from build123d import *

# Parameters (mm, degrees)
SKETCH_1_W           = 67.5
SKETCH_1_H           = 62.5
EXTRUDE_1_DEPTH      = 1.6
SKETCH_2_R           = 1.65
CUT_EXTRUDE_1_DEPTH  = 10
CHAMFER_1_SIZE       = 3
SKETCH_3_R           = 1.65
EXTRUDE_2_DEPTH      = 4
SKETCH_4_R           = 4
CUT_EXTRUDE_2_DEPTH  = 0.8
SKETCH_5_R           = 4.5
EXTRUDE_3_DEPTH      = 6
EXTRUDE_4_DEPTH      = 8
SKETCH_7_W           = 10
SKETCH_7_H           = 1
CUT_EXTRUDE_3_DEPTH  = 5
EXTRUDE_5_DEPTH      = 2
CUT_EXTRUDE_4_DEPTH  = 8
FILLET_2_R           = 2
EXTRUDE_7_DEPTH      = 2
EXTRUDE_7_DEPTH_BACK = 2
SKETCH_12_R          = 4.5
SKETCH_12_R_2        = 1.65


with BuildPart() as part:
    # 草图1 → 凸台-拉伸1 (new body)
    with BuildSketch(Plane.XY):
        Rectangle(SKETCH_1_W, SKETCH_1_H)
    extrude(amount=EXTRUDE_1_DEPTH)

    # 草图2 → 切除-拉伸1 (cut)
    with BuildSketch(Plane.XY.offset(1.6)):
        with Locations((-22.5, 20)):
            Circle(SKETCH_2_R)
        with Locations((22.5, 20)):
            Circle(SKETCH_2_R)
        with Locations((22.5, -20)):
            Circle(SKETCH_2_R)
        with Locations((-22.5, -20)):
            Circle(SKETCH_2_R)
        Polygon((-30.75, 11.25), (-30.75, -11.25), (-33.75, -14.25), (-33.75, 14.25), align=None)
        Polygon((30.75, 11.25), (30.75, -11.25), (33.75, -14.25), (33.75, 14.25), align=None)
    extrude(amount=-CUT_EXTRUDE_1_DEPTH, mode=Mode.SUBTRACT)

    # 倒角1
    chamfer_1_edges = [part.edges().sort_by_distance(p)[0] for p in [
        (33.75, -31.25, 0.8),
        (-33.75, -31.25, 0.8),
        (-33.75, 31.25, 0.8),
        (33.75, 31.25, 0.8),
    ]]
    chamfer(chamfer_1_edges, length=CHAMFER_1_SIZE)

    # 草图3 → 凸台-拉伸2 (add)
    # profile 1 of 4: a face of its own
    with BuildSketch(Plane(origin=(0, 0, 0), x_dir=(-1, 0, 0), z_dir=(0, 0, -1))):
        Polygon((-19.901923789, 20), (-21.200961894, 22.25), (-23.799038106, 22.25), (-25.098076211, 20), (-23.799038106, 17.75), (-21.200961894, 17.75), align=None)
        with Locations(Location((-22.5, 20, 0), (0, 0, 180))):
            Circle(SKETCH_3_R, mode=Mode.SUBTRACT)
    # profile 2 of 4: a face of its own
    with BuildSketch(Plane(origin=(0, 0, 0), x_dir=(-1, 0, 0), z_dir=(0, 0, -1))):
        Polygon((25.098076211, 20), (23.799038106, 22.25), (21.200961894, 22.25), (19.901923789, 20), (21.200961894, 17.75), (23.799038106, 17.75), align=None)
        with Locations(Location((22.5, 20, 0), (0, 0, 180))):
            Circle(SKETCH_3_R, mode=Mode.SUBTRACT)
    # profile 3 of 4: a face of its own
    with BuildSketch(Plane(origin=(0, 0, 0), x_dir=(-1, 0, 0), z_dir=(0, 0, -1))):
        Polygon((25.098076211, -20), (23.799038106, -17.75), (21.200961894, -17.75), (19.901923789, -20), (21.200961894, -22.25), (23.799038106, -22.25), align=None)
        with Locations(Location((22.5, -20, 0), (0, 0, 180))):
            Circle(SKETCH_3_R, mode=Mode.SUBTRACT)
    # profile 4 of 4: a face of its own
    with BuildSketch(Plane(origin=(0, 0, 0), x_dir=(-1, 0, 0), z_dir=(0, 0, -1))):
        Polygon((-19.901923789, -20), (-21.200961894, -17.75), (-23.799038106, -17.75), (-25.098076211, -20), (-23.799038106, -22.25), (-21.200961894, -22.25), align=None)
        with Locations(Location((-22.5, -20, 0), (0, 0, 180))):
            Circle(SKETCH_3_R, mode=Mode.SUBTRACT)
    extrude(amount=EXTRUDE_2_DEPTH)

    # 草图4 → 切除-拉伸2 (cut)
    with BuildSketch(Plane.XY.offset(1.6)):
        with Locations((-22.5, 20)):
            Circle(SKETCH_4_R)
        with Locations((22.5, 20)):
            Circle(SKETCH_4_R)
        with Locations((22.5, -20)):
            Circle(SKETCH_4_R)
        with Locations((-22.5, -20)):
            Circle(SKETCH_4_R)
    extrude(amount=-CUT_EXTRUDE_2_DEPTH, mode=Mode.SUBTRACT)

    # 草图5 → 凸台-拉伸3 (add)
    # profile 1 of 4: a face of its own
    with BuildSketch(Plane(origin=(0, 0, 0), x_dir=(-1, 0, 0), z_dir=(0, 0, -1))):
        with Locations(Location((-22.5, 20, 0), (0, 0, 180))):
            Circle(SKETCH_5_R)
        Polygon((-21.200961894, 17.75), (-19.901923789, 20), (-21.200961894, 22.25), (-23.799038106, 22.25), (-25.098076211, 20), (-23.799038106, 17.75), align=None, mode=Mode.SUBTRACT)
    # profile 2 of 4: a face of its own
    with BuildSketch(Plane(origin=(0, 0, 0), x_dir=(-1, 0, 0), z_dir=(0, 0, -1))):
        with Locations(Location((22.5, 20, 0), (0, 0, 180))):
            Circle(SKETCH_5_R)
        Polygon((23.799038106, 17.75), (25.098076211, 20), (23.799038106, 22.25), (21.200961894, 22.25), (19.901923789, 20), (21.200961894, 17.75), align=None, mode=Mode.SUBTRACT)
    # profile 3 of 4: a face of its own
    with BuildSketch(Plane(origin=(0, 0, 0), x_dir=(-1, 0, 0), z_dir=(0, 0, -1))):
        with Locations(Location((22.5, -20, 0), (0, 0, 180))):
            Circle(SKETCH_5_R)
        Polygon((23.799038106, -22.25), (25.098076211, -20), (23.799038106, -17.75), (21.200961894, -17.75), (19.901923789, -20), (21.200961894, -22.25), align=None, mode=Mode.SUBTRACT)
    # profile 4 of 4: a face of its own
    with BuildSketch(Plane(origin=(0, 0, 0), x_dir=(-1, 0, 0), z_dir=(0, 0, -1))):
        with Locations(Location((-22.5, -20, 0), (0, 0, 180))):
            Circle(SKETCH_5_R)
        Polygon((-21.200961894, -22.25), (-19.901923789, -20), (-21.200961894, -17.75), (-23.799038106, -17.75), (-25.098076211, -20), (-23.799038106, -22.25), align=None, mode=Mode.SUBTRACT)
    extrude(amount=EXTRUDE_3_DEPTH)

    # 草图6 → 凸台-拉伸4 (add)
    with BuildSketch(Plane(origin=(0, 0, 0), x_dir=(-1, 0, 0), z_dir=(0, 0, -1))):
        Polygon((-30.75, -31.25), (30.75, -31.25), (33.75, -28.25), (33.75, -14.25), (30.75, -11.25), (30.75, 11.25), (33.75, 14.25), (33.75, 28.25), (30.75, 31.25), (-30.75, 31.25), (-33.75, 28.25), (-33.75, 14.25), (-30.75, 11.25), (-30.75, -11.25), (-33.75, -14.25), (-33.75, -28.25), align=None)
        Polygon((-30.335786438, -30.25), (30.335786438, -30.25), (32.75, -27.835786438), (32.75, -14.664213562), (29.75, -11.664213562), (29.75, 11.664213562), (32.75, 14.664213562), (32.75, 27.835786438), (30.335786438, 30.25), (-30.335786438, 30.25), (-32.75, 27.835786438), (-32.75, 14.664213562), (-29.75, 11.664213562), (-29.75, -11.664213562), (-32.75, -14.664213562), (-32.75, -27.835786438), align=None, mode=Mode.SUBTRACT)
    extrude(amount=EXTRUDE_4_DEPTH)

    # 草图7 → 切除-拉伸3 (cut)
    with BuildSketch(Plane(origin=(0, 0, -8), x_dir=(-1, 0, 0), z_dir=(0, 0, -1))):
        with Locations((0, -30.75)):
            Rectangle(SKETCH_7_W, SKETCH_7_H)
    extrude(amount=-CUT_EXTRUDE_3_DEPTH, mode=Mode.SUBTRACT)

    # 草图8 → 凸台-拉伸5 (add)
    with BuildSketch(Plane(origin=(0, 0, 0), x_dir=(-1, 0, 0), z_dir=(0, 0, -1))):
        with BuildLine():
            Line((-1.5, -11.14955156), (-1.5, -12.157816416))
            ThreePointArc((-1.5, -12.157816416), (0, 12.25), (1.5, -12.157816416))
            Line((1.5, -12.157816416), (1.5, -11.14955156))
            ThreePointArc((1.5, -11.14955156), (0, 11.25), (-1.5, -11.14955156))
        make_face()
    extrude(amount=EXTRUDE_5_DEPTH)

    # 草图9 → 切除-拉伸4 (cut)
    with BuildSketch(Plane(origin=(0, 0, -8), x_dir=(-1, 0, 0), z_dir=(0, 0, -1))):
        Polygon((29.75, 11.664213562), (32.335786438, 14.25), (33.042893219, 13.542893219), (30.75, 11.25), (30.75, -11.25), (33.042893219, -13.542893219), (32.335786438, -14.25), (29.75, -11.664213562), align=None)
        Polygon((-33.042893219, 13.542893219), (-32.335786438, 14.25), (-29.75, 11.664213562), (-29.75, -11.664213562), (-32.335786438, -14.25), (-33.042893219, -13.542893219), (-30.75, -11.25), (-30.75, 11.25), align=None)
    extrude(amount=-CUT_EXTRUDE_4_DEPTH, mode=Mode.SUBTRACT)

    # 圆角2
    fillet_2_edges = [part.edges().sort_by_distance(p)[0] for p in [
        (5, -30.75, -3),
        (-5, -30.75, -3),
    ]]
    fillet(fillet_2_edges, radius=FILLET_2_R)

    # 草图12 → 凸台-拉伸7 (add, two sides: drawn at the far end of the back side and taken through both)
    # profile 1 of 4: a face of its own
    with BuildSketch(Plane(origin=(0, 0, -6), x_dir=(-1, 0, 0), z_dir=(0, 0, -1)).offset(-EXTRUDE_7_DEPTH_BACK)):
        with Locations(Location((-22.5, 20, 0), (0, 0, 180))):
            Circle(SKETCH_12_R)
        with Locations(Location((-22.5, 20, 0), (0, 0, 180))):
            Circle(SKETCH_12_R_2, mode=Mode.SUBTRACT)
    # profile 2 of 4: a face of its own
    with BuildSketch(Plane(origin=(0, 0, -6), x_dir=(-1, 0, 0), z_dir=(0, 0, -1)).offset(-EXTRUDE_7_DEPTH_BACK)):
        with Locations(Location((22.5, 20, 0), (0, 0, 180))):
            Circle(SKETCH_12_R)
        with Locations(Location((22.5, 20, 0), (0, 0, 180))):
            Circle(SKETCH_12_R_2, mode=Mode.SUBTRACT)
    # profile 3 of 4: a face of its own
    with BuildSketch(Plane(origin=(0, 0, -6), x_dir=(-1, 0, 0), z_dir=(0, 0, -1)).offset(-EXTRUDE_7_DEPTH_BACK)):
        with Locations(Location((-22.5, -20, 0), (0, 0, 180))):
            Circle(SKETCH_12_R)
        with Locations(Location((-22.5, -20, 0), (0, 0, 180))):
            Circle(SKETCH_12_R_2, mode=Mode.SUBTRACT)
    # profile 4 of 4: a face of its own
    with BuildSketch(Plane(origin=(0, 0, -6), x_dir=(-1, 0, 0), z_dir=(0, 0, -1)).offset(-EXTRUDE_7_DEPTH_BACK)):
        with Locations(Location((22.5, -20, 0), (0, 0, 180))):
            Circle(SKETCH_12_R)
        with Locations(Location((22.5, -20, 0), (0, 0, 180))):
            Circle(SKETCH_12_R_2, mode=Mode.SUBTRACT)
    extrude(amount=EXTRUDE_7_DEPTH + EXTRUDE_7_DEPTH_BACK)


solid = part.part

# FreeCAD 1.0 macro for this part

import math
import FreeCAD as App
import Part
import Sketcher
Q = App.Units.Quantity


def edges_at(feature, points):
    """Names of the edges that pass closest to the given points."""
    edges = feature.Shape.Edges
    near = lambda p: min(range(len(edges)), key=lambda i: edges[i].distToShape(Part.Vertex(*p))[0])
    return sorted({f"Edge{near(p) + 1}" for p in points})


def add_polygon(sketch, points):
    """Adds a closed chain of lines whose ends are joined by coincident constraints."""
    first, n = sketch.GeometryCount, len(points)
    for a, b in zip(points, points[1:] + points[:1]):
        sketch.addGeometry(Part.LineSegment(App.Vector(*a, 0), App.Vector(*b, 0)), False)
    for i in range(n):
        sketch.addConstraint(Sketcher.Constraint("Coincident", first + i, 2, first + (i + 1) % n, 1))

doc = App.newDocument("Part")
body = doc.addObject("PartDesign::Body", "Body")

# Sketch on XY plane
sketch1 = doc.addObject("Sketcher::SketchObject", "Sketch")
body.addObject(sketch1)
sketch1.AttachmentSupport = (doc.XY_Plane, [""])
sketch1.MapMode = "FlatFace"
add_polygon(sketch1, [(-34, 31), (-34, -31), (34, -31), (34, 31)])  # lines 0-3
sketch1.addConstraint(Sketcher.Constraint("Vertical", 0))
sketch1.addConstraint(Sketcher.Constraint("Horizontal", 1))
sketch1.addConstraint(Sketcher.Constraint("Vertical", 2))
sketch1.addConstraint(Sketcher.Constraint("Horizontal", 3))
sketch1.addConstraint(Sketcher.Constraint("Symmetric", 0, 2, 2, 2, -1, 1))
sketch1.addConstraint(Sketcher.Constraint("DistanceX", 1, 1, 1, 2, Q("67.5 mm")))
sketch1.addConstraint(Sketcher.Constraint("DistanceY", 0, 2, 0, 1, Q("62.5 mm")))
pad1 = doc.addObject("PartDesign::Pad", "Pad")
body.addObject(pad1)
pad1.Profile = sketch1
pad1.Length = 1.6

# Sketch on XY plane
sketch2 = doc.addObject("Sketcher::SketchObject", "Sketch001")
body.addObject(sketch2)
sketch2.AttachmentSupport = (doc.XY_Plane, [""])
sketch2.MapMode = "FlatFace"
sketch2.AttachmentOffset = App.Placement(App.Vector(0, 0, 1.6), App.Rotation())
sketch2.addGeometry(Part.Circle(App.Vector(-22.5, 20, 0), App.Vector(0, 0, 1), 1.6), False)  # 0
sketch2.addGeometry(Part.Circle(App.Vector(22.5, 20, 0), App.Vector(0, 0, 1), 1.6), False)  # 1
sketch2.addGeometry(Part.Circle(App.Vector(22.5, -20, 0), App.Vector(0, 0, 1), 1.6), False)  # 2
sketch2.addGeometry(Part.Circle(App.Vector(-22.5, -20, 0), App.Vector(0, 0, 1), 1.6), False)  # 3
add_polygon(sketch2, [(-30.8, -11.2), (-30.8, 11.2), (-33.8, 14.2), (-33.8, -14.2)])  # lines 4-7
add_polygon(sketch2, [(30.8, 11.2), (30.8, -11.2), (33.8, -14.2), (33.8, 14.2)])  # lines 8-11
sketch2.addConstraint(Sketcher.Constraint("Vertical", 4))
sketch2.addConstraint(Sketcher.Constraint("Vertical", 6))
sketch2.addConstraint(Sketcher.Constraint("Vertical", 8))
sketch2.addConstraint(Sketcher.Constraint("Vertical", 10))
sketch2.addConstraint(Sketcher.Constraint("Equal", 0, 1))
sketch2.addConstraint(Sketcher.Constraint("Equal", 1, 2))
sketch2.addConstraint(Sketcher.Constraint("Equal", 2, 3))
sketch2.addConstraint(Sketcher.Constraint("Symmetric", 0, 3, 2, 3, -1, 1))
sketch2.addConstraint(Sketcher.Constraint("Symmetric", 1, 3, 3, 3, -1, 1))
sketch2.addConstraint(Sketcher.Constraint("Symmetric", 4, 2, 8, 2, -1, 1))
sketch2.addConstraint(Sketcher.Constraint("Symmetric", 5, 2, 9, 2, -1, 1))
sketch2.addConstraint(Sketcher.Constraint("Symmetric", 0, 3, 1, 3, -2))
sketch2.addConstraint(Sketcher.Constraint("Perpendicular", 5, 7))
sketch2.addConstraint(Sketcher.Constraint("Perpendicular", 9, 11))
sketch2.addConstraint(Sketcher.Constraint("Horizontal", 7, 2, 8, 2))
sketch2.addConstraint(Sketcher.Constraint("Horizontal", 6, 2, 9, 2))
sketch2.addConstraint(Sketcher.Constraint("Horizontal", 5, 2, 10, 2))
sketch2.addConstraint(Sketcher.Constraint("Diameter", 0, Q("3.3 mm")))
sketch2.addConstraint(Sketcher.Constraint("DistanceY", 4, 1, 4, 2, Q("22.5 mm")))
sketch2.addConstraint(Sketcher.Constraint("DistanceY", 6, 2, 6, 1, Q("28.5 mm")))
sketch2.addConstraint(Sketcher.Constraint("DistanceY", -1, 1, 0, 3, Q("20 mm")))
sketch2.addConstraint(Sketcher.Constraint("DistanceX", 0, 3, 1, 3, Q("45 mm")))
sketch2.addConstraint(Sketcher.Constraint("DistanceX", 7, 2, 8, 2, Q("61.5 mm")))
pocket1 = doc.addObject("PartDesign::Pocket", "Pocket")
body.addObject(pocket1)
pocket1.Profile = sketch2
pocket1.Length = 10
doc.recompute()

chamfer = doc.addObject("PartDesign::Chamfer", "Chamfer")
body.addObject(chamfer)
chamfer.Base = (pocket1, edges_at(pocket1, [
    (33.75, -31.25, 0.8),
    (-33.75, -31.25, 0.8),
    (-33.75, 31.25, 0.8),
    (33.75, 31.25, 0.8),
]))
chamfer.Size = 3

# Sketch on XY plane
sketch3 = doc.addObject("Sketcher::SketchObject", "Sketch002")
body.addObject(sketch3)
sketch3.AttachmentSupport = (doc.XY_Plane, [""])
sketch3.MapMode = "FlatFace"
add_polygon(sketch3, [(19.9, 20), (21.2, 22.2), (23.8, 22.2), (25.1, 20), (23.8, 17.8), (21.2, 17.8)])  # lines 0-5
sketch3.addGeometry(Part.Circle(App.Vector(22.5, 20, 0), App.Vector(0, 0, 1), 1.6), False)  # 6
add_polygon(sketch3, [(-25.1, 20), (-23.8, 22.2), (-21.2, 22.2), (-19.9, 20), (-21.2, 17.8), (-23.8, 17.8)])  # lines 7-12
sketch3.addGeometry(Part.Circle(App.Vector(-22.5, 20, 0), App.Vector(0, 0, 1), 1.6), False)  # 13
add_polygon(sketch3, [(-25.1, -20), (-23.8, -17.8), (-21.2, -17.8), (-19.9, -20), (-21.2, -22.2), (-23.8, -22.2)])  # lines 14-19
sketch3.addGeometry(Part.Circle(App.Vector(-22.5, -20, 0), App.Vector(0, 0, 1), 1.6), False)  # 20
add_polygon(sketch3, [(19.9, -20), (21.2, -17.8), (23.8, -17.8), (25.1, -20), (23.8, -22.2), (21.2, -22.2)])  # lines 21-26
sketch3.addGeometry(Part.Circle(App.Vector(22.5, -20, 0), App.Vector(0, 0, 1), 1.6), False)  # 27
sketch3.addConstraint(Sketcher.Constraint("Horizontal", 1))
sketch3.addConstraint(Sketcher.Constraint("Horizontal", 4))
sketch3.addConstraint(Sketcher.Constraint("Horizontal", 8))
sketch3.addConstraint(Sketcher.Constraint("Horizontal", 11))
sketch3.addConstraint(Sketcher.Constraint("Horizontal", 15))
sketch3.addConstraint(Sketcher.Constraint("Horizontal", 18))
sketch3.addConstraint(Sketcher.Constraint("Horizontal", 22))
sketch3.addConstraint(Sketcher.Constraint("Horizontal", 25))
sketch3.addConstraint(Sketcher.Constraint("Equal", 6, 13))
sketch3.addConstraint(Sketcher.Constraint("Equal", 13, 20))
sketch3.addConstraint(Sketcher.Constraint("Equal", 20, 27))
sketch3.addConstraint(Sketcher.Constraint("Symmetric", 6, 3, 20, 3, -1, 1))
sketch3.addConstraint(Sketcher.Constraint("Symmetric", 13, 3, 27, 3, -1, 1))
sketch3.addConstraint(Sketcher.Constraint("Symmetric", 3, 2, 14, 2, -1, 1))
sketch3.addConstraint(Sketcher.Constraint("Symmetric", 5, 2, 16, 2, -1, 1))
sketch3.addConstraint(Sketcher.Constraint("Symmetric", 0, 2, 17, 2, -1, 1))
sketch3.addConstraint(Sketcher.Constraint("Symmetric", 2, 2, 19, 2, -1, 1))
sketch3.addConstraint(Sketcher.Constraint("Symmetric", 10, 2, 21, 2, -1, 1))
sketch3.addConstraint(Sketcher.Constraint("Symmetric", 12, 2, 23, 2, -1, 1))
sketch3.addConstraint(Sketcher.Constraint("Symmetric", 7, 2, 24, 2, -1, 1))
sketch3.addConstraint(Sketcher.Constraint("Symmetric", 9, 2, 26, 2, -1, 1))
sketch3.addConstraint(Sketcher.Constraint("Symmetric", 6, 3, 13, 3, -2))
sketch3.addConstraint(Sketcher.Constraint("Symmetric", 1, 2, 7, 2, -2))
sketch3.addConstraint(Sketcher.Constraint("Symmetric", 5, 2, 9, 2, -2))
sketch3.addConstraint(Sketcher.Constraint("Symmetric", 4, 2, 10, 2, -2))
sketch3.addConstraint(Sketcher.Constraint("Symmetric", 2, 2, 12, 2, -2))
sketch3.addConstraint(Sketcher.Constraint("Parallel", 0, 3))
sketch3.addConstraint(Sketcher.Constraint("Parallel", 2, 5))
sketch3.addConstraint(Sketcher.Constraint("Parallel", 3, 7))
sketch3.addConstraint(Sketcher.Constraint("Parallel", 5, 9))
sketch3.addConstraint(Sketcher.Constraint("Parallel", 9, 12))
sketch3.addConstraint(Sketcher.Constraint("Parallel", 12, 16))
sketch3.addConstraint(Sketcher.Constraint("Parallel", 16, 19))
sketch3.addConstraint(Sketcher.Constraint("Parallel", 19, 23))
sketch3.addConstraint(Sketcher.Constraint("Parallel", 23, 26))
sketch3.addConstraint(Sketcher.Constraint("Horizontal", 13, 3, 2, 2))
sketch3.addConstraint(Sketcher.Constraint("Horizontal", 2, 2, 5, 2))
sketch3.addConstraint(Sketcher.Constraint("Vertical", 1, 2, 3, 2))
sketch3.addConstraint(Sketcher.Constraint("Diameter", 6, Q("3.3 mm")))
sketch3.addConstraint(Sketcher.Constraint("Angle", 0, Q("60 deg")))
sketch3.addConstraint(Sketcher.Constraint("DistanceY", -1, 1, 6, 3, Q("20 mm")))
sketch3.addConstraint(Sketcher.Constraint("DistanceX", 13, 3, 6, 3, Q("45 mm")))
sketch3.addConstraint(Sketcher.Constraint("DistanceX", 7, 2, 0, 2, Q("45 mm")))
sketch3.addConstraint(Sketcher.Constraint("DistanceY", 3, 2, 1, 2, Q("4.5 mm")))
sketch3.addConstraint(Sketcher.Constraint("DistanceX", 1, 1, 1, 2, Q("2.598076 mm")))
pad2 = doc.addObject("PartDesign::Pad", "Pad001")
body.addObject(pad2)
pad2.Profile = sketch3
pad2.Length = 4
pad2.Reversed = True

# Sketch on XY plane
sketch4 = doc.addObject("Sketcher::SketchObject", "Sketch003")
body.addObject(sketch4)
sketch4.AttachmentSupport = (doc.XY_Plane, [""])
sketch4.MapMode = "FlatFace"
sketch4.AttachmentOffset = App.Placement(App.Vector(0, 0, 1.6), App.Rotation())
sketch4.addGeometry(Part.Circle(App.Vector(-22.5, 20, 0), App.Vector(0, 0, 1), 4), False)
sketch4.addGeometry(Part.Circle(App.Vector(22.5, 20, 0), App.Vector(0, 0, 1), 4), False)
sketch4.addGeometry(Part.Circle(App.Vector(22.5, -20, 0), App.Vector(0, 0, 1), 4), False)
sketch4.addGeometry(Part.Circle(App.Vector(-22.5, -20, 0), App.Vector(0, 0, 1), 4), False)
sketch4.addConstraint(Sketcher.Constraint("Equal", 0, 1))
sketch4.addConstraint(Sketcher.Constraint("Equal", 1, 2))
sketch4.addConstraint(Sketcher.Constraint("Equal", 2, 3))
sketch4.addConstraint(Sketcher.Constraint("Symmetric", 0, 3, 2, 3, -1, 1))
sketch4.addConstraint(Sketcher.Constraint("Symmetric", 1, 3, 3, 3, -1, 1))
sketch4.addConstraint(Sketcher.Constraint("Symmetric", 0, 3, 1, 3, -2))
sketch4.addConstraint(Sketcher.Constraint("Diameter", 0, Q("8 mm")))
sketch4.addConstraint(Sketcher.Constraint("DistanceY", -1, 1, 0, 3, Q("20 mm")))
sketch4.addConstraint(Sketcher.Constraint("DistanceX", 0, 3, 1, 3, Q("45 mm")))
pocket2 = doc.addObject("PartDesign::Pocket", "Pocket001")
body.addObject(pocket2)
pocket2.Profile = sketch4
pocket2.Length = 0.8

# Sketch on XY plane
sketch5 = doc.addObject("Sketcher::SketchObject", "Sketch004")
body.addObject(sketch5)
sketch5.AttachmentSupport = (doc.XY_Plane, [""])
sketch5.MapMode = "FlatFace"
sketch5.addGeometry(Part.Circle(App.Vector(22.5, 20, 0), App.Vector(0, 0, 1), 4.5), False)  # 0
add_polygon(sketch5, [(19.9, 20), (21.2, 17.8), (23.8, 17.8), (25.1, 20), (23.8, 22.2), (21.2, 22.2)])  # lines 1-6
sketch5.addGeometry(Part.Circle(App.Vector(-22.5, 20, 0), App.Vector(0, 0, 1), 4.5), False)  # 7
add_polygon(sketch5, [(-25.1, 20), (-23.8, 17.8), (-21.2, 17.8), (-19.9, 20), (-21.2, 22.2), (-23.8, 22.2)])  # lines 8-13
sketch5.addGeometry(Part.Circle(App.Vector(-22.5, -20, 0), App.Vector(0, 0, 1), 4.5), False)  # 14
add_polygon(sketch5, [(-25.1, -20), (-23.8, -22.2), (-21.2, -22.2), (-19.9, -20), (-21.2, -17.8), (-23.8, -17.8)])  # lines 15-20
sketch5.addGeometry(Part.Circle(App.Vector(22.5, -20, 0), App.Vector(0, 0, 1), 4.5), False)  # 21
add_polygon(sketch5, [(19.9, -20), (21.2, -22.2), (23.8, -22.2), (25.1, -20), (23.8, -17.8), (21.2, -17.8)])  # lines 22-27
sketch5.addConstraint(Sketcher.Constraint("Horizontal", 2))
sketch5.addConstraint(Sketcher.Constraint("Horizontal", 5))
sketch5.addConstraint(Sketcher.Constraint("Horizontal", 9))
sketch5.addConstraint(Sketcher.Constraint("Horizontal", 12))
sketch5.addConstraint(Sketcher.Constraint("Horizontal", 16))
sketch5.addConstraint(Sketcher.Constraint("Horizontal", 19))
sketch5.addConstraint(Sketcher.Constraint("Horizontal", 23))
sketch5.addConstraint(Sketcher.Constraint("Horizontal", 26))
sketch5.addConstraint(Sketcher.Constraint("Equal", 0, 7))
sketch5.addConstraint(Sketcher.Constraint("Equal", 7, 14))
sketch5.addConstraint(Sketcher.Constraint("Equal", 14, 21))
sketch5.addConstraint(Sketcher.Constraint("Symmetric", 0, 3, 14, 3, -1, 1))
sketch5.addConstraint(Sketcher.Constraint("Symmetric", 7, 3, 21, 3, -1, 1))
sketch5.addConstraint(Sketcher.Constraint("Symmetric", 4, 2, 15, 2, -1, 1))
sketch5.addConstraint(Sketcher.Constraint("Symmetric", 6, 2, 17, 2, -1, 1))
sketch5.addConstraint(Sketcher.Constraint("Symmetric", 1, 2, 18, 2, -1, 1))
sketch5.addConstraint(Sketcher.Constraint("Symmetric", 3, 2, 20, 2, -1, 1))
sketch5.addConstraint(Sketcher.Constraint("Symmetric", 11, 2, 22, 2, -1, 1))
sketch5.addConstraint(Sketcher.Constraint("Symmetric", 13, 2, 24, 2, -1, 1))
sketch5.addConstraint(Sketcher.Constraint("Symmetric", 8, 2, 25, 2, -1, 1))
sketch5.addConstraint(Sketcher.Constraint("Symmetric", 10, 2, 27, 2, -1, 1))
sketch5.addConstraint(Sketcher.Constraint("Symmetric", 0, 3, 7, 3, -2))
sketch5.addConstraint(Sketcher.Constraint("Symmetric", 2, 2, 8, 2, -2))
sketch5.addConstraint(Sketcher.Constraint("Symmetric", 6, 2, 10, 2, -2))
sketch5.addConstraint(Sketcher.Constraint("Symmetric", 5, 2, 11, 2, -2))
sketch5.addConstraint(Sketcher.Constraint("Symmetric", 3, 2, 13, 2, -2))
sketch5.addConstraint(Sketcher.Constraint("Parallel", 1, 4))
sketch5.addConstraint(Sketcher.Constraint("Parallel", 3, 6))
sketch5.addConstraint(Sketcher.Constraint("Parallel", 4, 8))
sketch5.addConstraint(Sketcher.Constraint("Parallel", 6, 10))
sketch5.addConstraint(Sketcher.Constraint("Parallel", 10, 13))
sketch5.addConstraint(Sketcher.Constraint("Parallel", 13, 17))
sketch5.addConstraint(Sketcher.Constraint("Parallel", 17, 20))
sketch5.addConstraint(Sketcher.Constraint("Parallel", 20, 24))
sketch5.addConstraint(Sketcher.Constraint("Parallel", 24, 27))
sketch5.addConstraint(Sketcher.Constraint("Horizontal", 7, 3, 3, 2))
sketch5.addConstraint(Sketcher.Constraint("Horizontal", 3, 2, 6, 2))
sketch5.addConstraint(Sketcher.Constraint("Vertical", 2, 2, 4, 2))
sketch5.addConstraint(Sketcher.Constraint("Diameter", 0, Q("9 mm")))
sketch5.addConstraint(Sketcher.Constraint("Angle", 1, Q("-60 deg")))
sketch5.addConstraint(Sketcher.Constraint("DistanceY", -1, 1, 0, 3, Q("20 mm")))
sketch5.addConstraint(Sketcher.Constraint("DistanceX", 7, 3, 0, 3, Q("45 mm")))
sketch5.addConstraint(Sketcher.Constraint("DistanceX", 8, 2, 1, 2, Q("45 mm")))
sketch5.addConstraint(Sketcher.Constraint("DistanceY", 2, 2, 4, 2, Q("4.5 mm")))
sketch5.addConstraint(Sketcher.Constraint("DistanceX", 2, 1, 2, 2, Q("2.598076 mm")))
pad3 = doc.addObject("PartDesign::Pad", "Pad002")
body.addObject(pad3)
pad3.Profile = sketch5
pad3.Length = 6
pad3.Reversed = True

# Sketch on XY plane
sketch6 = doc.addObject("Sketcher::SketchObject", "Sketch005")
body.addObject(sketch6)
sketch6.AttachmentSupport = (doc.XY_Plane, [""])
sketch6.MapMode = "FlatFace"
add_polygon(sketch6, [(30.8, -31.2), (-30.8, -31.2), (-33.8, -28.2), (-33.8, -14.2), (-30.8, -11.2), (-30.8, 11.2), (-33.8, 14.2), (-33.8, 28.2), (-30.8, 31.2), (30.8, 31.2), (33.8, 28.2), (33.8, 14.2), (30.8, 11.2), (30.8, -11.2), (33.8, -14.2), (33.8, -28.2)])  # lines 0-15
add_polygon(sketch6, [(-30.3, -30.2), (30.3, -30.2), (32.8, -27.8), (32.8, -14.7), (29.8, -11.7), (29.8, 11.7), (32.8, 14.7), (32.8, 27.8), (30.3, 30.2), (-30.3, 30.2), (-32.8, 27.8), (-32.8, 14.7), (-29.8, 11.7), (-29.8, -11.7), (-32.8, -14.7), (-32.8, -27.8)])  # lines 16-31
sketch6.addConstraint(Sketcher.Constraint("Horizontal", 0))
sketch6.addConstraint(Sketcher.Constraint("Vertical", 2))
sketch6.addConstraint(Sketcher.Constraint("Vertical", 4))
sketch6.addConstraint(Sketcher.Constraint("Vertical", 6))
sketch6.addConstraint(Sketcher.Constraint("Horizontal", 8))
sketch6.addConstraint(Sketcher.Constraint("Vertical", 10))
sketch6.addConstraint(Sketcher.Constraint("Vertical", 12))
sketch6.addConstraint(Sketcher.Constraint("Vertical", 14))
sketch6.addConstraint(Sketcher.Constraint("Horizontal", 16))
sketch6.addConstraint(Sketcher.Constraint("Vertical", 18))
sketch6.addConstraint(Sketcher.Constraint("Vertical", 20))
sketch6.addConstraint(Sketcher.Constraint("Vertical", 22))
sketch6.addConstraint(Sketcher.Constraint("Horizontal", 24))
sketch6.addConstraint(Sketcher.Constraint("Vertical", 26))
sketch6.addConstraint(Sketcher.Constraint("Vertical", 28))
sketch6.addConstraint(Sketcher.Constraint("Vertical", 30))
sketch6.addConstraint(Sketcher.Constraint("Symmetric", 0, 2, 8, 2, -1, 1))
sketch6.addConstraint(Sketcher.Constraint("Symmetric", 1, 2, 9, 2, -1, 1))
sketch6.addConstraint(Sketcher.Constraint("Symmetric", 3, 2, 11, 2, -1, 1))
sketch6.addConstraint(Sketcher.Constraint("Symmetric", 5, 2, 13, 2, -1, 1))
sketch6.addConstraint(Sketcher.Constraint("Symmetric", 16, 2, 24, 2, -1, 1))
sketch6.addConstraint(Sketcher.Constraint("Symmetric", 17, 2, 25, 2, -1, 1))
sketch6.addConstraint(Sketcher.Constraint("Symmetric", 19, 2, 27, 2, -1, 1))
sketch6.addConstraint(Sketcher.Constraint("Symmetric", 21, 2, 29, 2, -1, 1))
sketch6.addConstraint(Sketcher.Constraint("Symmetric", 6, 2, 9, 2, -2))
sketch6.addConstraint(Sketcher.Constraint("Symmetric", 22, 2, 25, 2, -2))
sketch6.addConstraint(Sketcher.Constraint("Perpendicular", 1, 3))
sketch6.addConstraint(Sketcher.Constraint("Perpendicular", 3, 5))
sketch6.addConstraint(Sketcher.Constraint("Perpendicular", 5, 7))
sketch6.addConstraint(Sketcher.Constraint("Perpendicular", 9, 11))
sketch6.addConstraint(Sketcher.Constraint("Perpendicular", 11, 13))
sketch6.addConstraint(Sketcher.Constraint("Perpendicular", 13, 15))
sketch6.addConstraint(Sketcher.Constraint("Parallel", 15, 17))
sketch6.addConstraint(Sketcher.Constraint("Perpendicular", 17, 19))
sketch6.addConstraint(Sketcher.Constraint("Perpendicular", 19, 21))
sketch6.addConstraint(Sketcher.Constraint("Perpendicular", 21, 23))
sketch6.addConstraint(Sketcher.Constraint("Perpendicular", 25, 27))
sketch6.addConstraint(Sketcher.Constraint("Perpendicular", 27, 29))
sketch6.addConstraint(Sketcher.Constraint("Perpendicular", 29, 31))
sketch6.addConstraint(Sketcher.Constraint("Horizontal", 5, 2, 10, 2))
sketch6.addConstraint(Sketcher.Constraint("Horizontal", 4, 2, 11, 2))
sketch6.addConstraint(Sketcher.Constraint("Horizontal", 1, 2, 14, 2))
sketch6.addConstraint(Sketcher.Constraint("Horizontal", 21, 2, 26, 2))
sketch6.addConstraint(Sketcher.Constraint("Horizontal", 17, 2, 30, 2))
sketch6.addConstraint(Sketcher.Constraint("Vertical", 0, 2, 3, 2))
sketch6.addConstraint(Sketcher.Constraint("Equal", 15, 19))
sketch6.addConstraint(Sketcher.Constraint("DistanceY", 2, 1, 2, 2, Q("14 mm")))
sketch6.addConstraint(Sketcher.Constraint("DistanceX", 0, 2, 0, 1, Q("61.5 mm")))
sketch6.addConstraint(Sketcher.Constraint("DistanceY", 4, 1, 4, 2, Q("22.5 mm")))
sketch6.addConstraint(Sketcher.Constraint("DistanceX", 1, 2, 0, 2, Q("3 mm")))
sketch6.addConstraint(Sketcher.Constraint("DistanceY", 15, 2, 16, 2, Q("1 mm")))
sketch6.addConstraint(Sketcher.Constraint("DistanceX", 17, 2, 14, 2, Q("1 mm")))
sketch6.addConstraint(Sketcher.Constraint("DistanceX", 16, 1, 16, 2, Q("60.671573 mm")))
sketch6.addConstraint(Sketcher.Constraint("DistanceY", 18, 1, 18, 2, Q("13.171573 mm")))
pad4 = doc.addObject("PartDesign::Pad", "Pad003")
body.addObject(pad4)
pad4.Profile = sketch6
pad4.Length = 8
pad4.Reversed = True

# Sketch on XY plane
sketch7 = doc.addObject("Sketcher::SketchObject", "Sketch006")
body.addObject(sketch7)
sketch7.AttachmentSupport = (doc.XY_Plane, [""])
sketch7.MapMode = "FlatFace"
sketch7.AttachmentOffset = App.Placement(App.Vector(0, 0, -8), App.Rotation())
add_polygon(sketch7, [(5, -30.2), (5, -31.2), (-5, -31.2), (-5, -30.2)])  # lines 0-3
sketch7.addConstraint(Sketcher.Constraint("Vertical", 0))
sketch7.addConstraint(Sketcher.Constraint("Horizontal", 1))
sketch7.addConstraint(Sketcher.Constraint("Vertical", 2))
sketch7.addConstraint(Sketcher.Constraint("Horizontal", 3))
sketch7.addConstraint(Sketcher.Constraint("DistanceX", 1, 2, 1, 1, Q("10 mm")))
sketch7.addConstraint(Sketcher.Constraint("DistanceY", 0, 2, 0, 1, Q("1 mm")))
sketch7.addConstraint(Sketcher.Constraint("DistanceX", -1, 1, 0, 2, Q("5 mm")))
sketch7.addConstraint(Sketcher.Constraint("DistanceY", 0, 2, -1, 1, Q("31.25 mm")))
pocket3 = doc.addObject("PartDesign::Pocket", "Pocket002")
body.addObject(pocket3)
pocket3.Profile = sketch7
pocket3.Length = 5
pocket3.Reversed = True

# Sketch on XY plane
sketch8 = doc.addObject("Sketcher::SketchObject", "Sketch007")
body.addObject(sketch8)
sketch8.AttachmentSupport = (doc.XY_Plane, [""])
sketch8.MapMode = "FlatFace"
sketch8.addGeometry(Part.LineSegment(App.Vector(1.5, -12.2, 0), App.Vector(1.5, -11.1, 0)), False)
sketch8.addGeometry(Part.ArcOfCircle(Part.Circle(App.Vector(0, 0, 0), App.Vector(0, 0, 1), 11.2), math.radians(-82), math.radians(262)), False)
sketch8.addGeometry(Part.LineSegment(App.Vector(-1.5, -11.1, 0), App.Vector(-1.5, -12.2, 0)), False)
sketch8.addGeometry(Part.ArcOfCircle(Part.Circle(App.Vector(0, 0, 0), App.Vector(0, 0, 1), 12.2), math.radians(-83), math.radians(263)), False)
sketch8.addConstraint(Sketcher.Constraint("Coincident", 0, 2, 1, 1))
sketch8.addConstraint(Sketcher.Constraint("Coincident", 1, 2, 2, 1))
sketch8.addConstraint(Sketcher.Constraint("Coincident", 2, 2, 3, 2))
sketch8.addConstraint(Sketcher.Constraint("Coincident", 3, 1, 0, 1))
sketch8.addConstraint(Sketcher.Constraint("Vertical", 0))
sketch8.addConstraint(Sketcher.Constraint("Vertical", 2))
sketch8.addConstraint(Sketcher.Constraint("Coincident", 1, 3, -1, 1))
sketch8.addConstraint(Sketcher.Constraint("Coincident", 3, 3, -1, 1))
sketch8.addConstraint(Sketcher.Constraint("Horizontal", 0, 2, 1, 2))
sketch8.addConstraint(Sketcher.Constraint("Radius", 1, Q("11.25 mm")))
sketch8.addConstraint(Sketcher.Constraint("Radius", 3, Q("12.25 mm")))
sketch8.addConstraint(Sketcher.Constraint("DistanceX", 1, 2, 0, 2, Q("3 mm")))
pad5 = doc.addObject("PartDesign::Pad", "Pad004")
body.addObject(pad5)
pad5.Profile = sketch8
pad5.Length = 2
pad5.Reversed = True

# Sketch on XY plane
sketch9 = doc.addObject("Sketcher::SketchObject", "Sketch008")
body.addObject(sketch9)
sketch9.AttachmentSupport = (doc.XY_Plane, [""])
sketch9.MapMode = "FlatFace"
sketch9.AttachmentOffset = App.Placement(App.Vector(0, 0, -8), App.Rotation())
add_polygon(sketch9, [(-32.3, 14.2), (-29.8, 11.7), (-29.8, -11.7), (-32.3, -14.2), (-33, -13.5), (-30.8, -11.2), (-30.8, 11.2), (-33, 13.5)])  # lines 0-7
add_polygon(sketch9, [(32.3, 14.2), (33, 13.5), (30.8, 11.2), (30.8, -11.2), (33, -13.5), (32.3, -14.2), (29.8, -11.7), (29.8, 11.7)])  # lines 8-15
sketch9.addConstraint(Sketcher.Constraint("Vertical", 1))
sketch9.addConstraint(Sketcher.Constraint("Vertical", 5))
sketch9.addConstraint(Sketcher.Constraint("Vertical", 10))
sketch9.addConstraint(Sketcher.Constraint("Vertical", 14))
sketch9.addConstraint(Sketcher.Constraint("Symmetric", 3, 2, 8, 2, -1, 1))
sketch9.addConstraint(Sketcher.Constraint("Symmetric", 4, 2, 9, 2, -1, 1))
sketch9.addConstraint(Sketcher.Constraint("Symmetric", 6, 2, 11, 2, -1, 1))
sketch9.addConstraint(Sketcher.Constraint("Symmetric", 7, 2, 12, 2, -1, 1))
sketch9.addConstraint(Sketcher.Constraint("Symmetric", 0, 2, 13, 2, -1, 1))
sketch9.addConstraint(Sketcher.Constraint("Symmetric", 2, 2, 15, 2, -1, 1))
sketch9.addConstraint(Sketcher.Constraint("Symmetric", 6, 2, 8, 2, -2))
sketch9.addConstraint(Sketcher.Constraint("Symmetric", 2, 2, 12, 2, -2))
sketch9.addConstraint(Sketcher.Constraint("Perpendicular", 0, 2))
sketch9.addConstraint(Sketcher.Constraint("Perpendicular", 2, 3))
sketch9.addConstraint(Sketcher.Constraint("Perpendicular", 3, 4))
sketch9.addConstraint(Sketcher.Constraint("Perpendicular", 4, 6))
sketch9.addConstraint(Sketcher.Constraint("Perpendicular", 6, 7))
sketch9.addConstraint(Sketcher.Constraint("Perpendicular", 9, 11))
sketch9.addConstraint(Sketcher.Constraint("Perpendicular", 13, 15))
sketch9.addConstraint(Sketcher.Constraint("Distance", 3, Q("1 mm")))
sketch9.addConstraint(Sketcher.Constraint("DistanceY", 5, 1, 5, 2, Q("22.5 mm")))
sketch9.addConstraint(Sketcher.Constraint("DistanceX", 4, 2, 1, 2, Q("1 mm")))
sketch9.addConstraint(Sketcher.Constraint("DistanceY", 2, 2, 4, 2, Q("3 mm")))
sketch9.addConstraint(Sketcher.Constraint("DistanceX", 0, 2, 9, 2, Q("60.5 mm")))
pocket4 = doc.addObject("PartDesign::Pocket", "Pocket003")
body.addObject(pocket4)
pocket4.Profile = sketch9
pocket4.Length = 8
pocket4.Reversed = True
doc.recompute()

fillet = doc.addObject("PartDesign::Fillet", "Fillet")
body.addObject(fillet)
fillet.Base = (pocket4, edges_at(pocket4, [(5, -30.75, -3), (-5, -30.75, -3)]))
fillet.Radius = 2

# Sketch on XY plane
sketch10 = doc.addObject("Sketcher::SketchObject", "Sketch009")
body.addObject(sketch10)
sketch10.AttachmentSupport = (doc.XY_Plane, [""])
sketch10.MapMode = "FlatFace"
sketch10.AttachmentOffset = App.Placement(App.Vector(0, 0, -6), App.Rotation())
sketch10.addGeometry(Part.Circle(App.Vector(22.5, 20, 0), App.Vector(0, 0, 1), 4.5), False)
sketch10.addGeometry(Part.Circle(App.Vector(22.5, 20, 0), App.Vector(0, 0, 1), 1.6), False)
sketch10.addGeometry(Part.Circle(App.Vector(-22.5, 20, 0), App.Vector(0, 0, 1), 4.5), False)
sketch10.addGeometry(Part.Circle(App.Vector(-22.5, 20, 0), App.Vector(0, 0, 1), 1.6), False)
sketch10.addGeometry(Part.Circle(App.Vector(22.5, -20, 0), App.Vector(0, 0, 1), 4.5), False)
sketch10.addGeometry(Part.Circle(App.Vector(22.5, -20, 0), App.Vector(0, 0, 1), 1.6), False)
sketch10.addGeometry(Part.Circle(App.Vector(-22.5, -20, 0), App.Vector(0, 0, 1), 4.5), False)
sketch10.addGeometry(Part.Circle(App.Vector(-22.5, -20, 0), App.Vector(0, 0, 1), 1.6), False)
sketch10.addConstraint(Sketcher.Constraint("Coincident", 1, 3, 0, 3))
sketch10.addConstraint(Sketcher.Constraint("Coincident", 3, 3, 2, 3))
sketch10.addConstraint(Sketcher.Constraint("Coincident", 5, 3, 4, 3))
sketch10.addConstraint(Sketcher.Constraint("Coincident", 7, 3, 6, 3))
sketch10.addConstraint(Sketcher.Constraint("Equal", 0, 2))
sketch10.addConstraint(Sketcher.Constraint("Equal", 1, 3))
sketch10.addConstraint(Sketcher.Constraint("Equal", 2, 4))
sketch10.addConstraint(Sketcher.Constraint("Equal", 3, 5))
sketch10.addConstraint(Sketcher.Constraint("Equal", 4, 6))
sketch10.addConstraint(Sketcher.Constraint("Equal", 5, 7))
sketch10.addConstraint(Sketcher.Constraint("Symmetric", 2, 3, 4, 3, -1, 1))
sketch10.addConstraint(Sketcher.Constraint("Symmetric", 0, 3, 6, 3, -1, 1))
sketch10.addConstraint(Sketcher.Constraint("Symmetric", 0, 3, 2, 3, -2))
sketch10.addConstraint(Sketcher.Constraint("Diameter", 0, Q("9 mm")))
sketch10.addConstraint(Sketcher.Constraint("Diameter", 1, Q("3.3 mm")))
sketch10.addConstraint(Sketcher.Constraint("DistanceY", -1, 1, 0, 3, Q("20 mm")))
sketch10.addConstraint(Sketcher.Constraint("DistanceX", 2, 3, 0, 3, Q("45 mm")))
pad6 = doc.addObject("PartDesign::Pad", "Pad005")
body.addObject(pad6)
pad6.Profile = sketch10
pad6.Type = "TwoLengths"
pad6.Length = 2
pad6.Length2 = 2
pad6.Reversed = True

doc.recompute()
